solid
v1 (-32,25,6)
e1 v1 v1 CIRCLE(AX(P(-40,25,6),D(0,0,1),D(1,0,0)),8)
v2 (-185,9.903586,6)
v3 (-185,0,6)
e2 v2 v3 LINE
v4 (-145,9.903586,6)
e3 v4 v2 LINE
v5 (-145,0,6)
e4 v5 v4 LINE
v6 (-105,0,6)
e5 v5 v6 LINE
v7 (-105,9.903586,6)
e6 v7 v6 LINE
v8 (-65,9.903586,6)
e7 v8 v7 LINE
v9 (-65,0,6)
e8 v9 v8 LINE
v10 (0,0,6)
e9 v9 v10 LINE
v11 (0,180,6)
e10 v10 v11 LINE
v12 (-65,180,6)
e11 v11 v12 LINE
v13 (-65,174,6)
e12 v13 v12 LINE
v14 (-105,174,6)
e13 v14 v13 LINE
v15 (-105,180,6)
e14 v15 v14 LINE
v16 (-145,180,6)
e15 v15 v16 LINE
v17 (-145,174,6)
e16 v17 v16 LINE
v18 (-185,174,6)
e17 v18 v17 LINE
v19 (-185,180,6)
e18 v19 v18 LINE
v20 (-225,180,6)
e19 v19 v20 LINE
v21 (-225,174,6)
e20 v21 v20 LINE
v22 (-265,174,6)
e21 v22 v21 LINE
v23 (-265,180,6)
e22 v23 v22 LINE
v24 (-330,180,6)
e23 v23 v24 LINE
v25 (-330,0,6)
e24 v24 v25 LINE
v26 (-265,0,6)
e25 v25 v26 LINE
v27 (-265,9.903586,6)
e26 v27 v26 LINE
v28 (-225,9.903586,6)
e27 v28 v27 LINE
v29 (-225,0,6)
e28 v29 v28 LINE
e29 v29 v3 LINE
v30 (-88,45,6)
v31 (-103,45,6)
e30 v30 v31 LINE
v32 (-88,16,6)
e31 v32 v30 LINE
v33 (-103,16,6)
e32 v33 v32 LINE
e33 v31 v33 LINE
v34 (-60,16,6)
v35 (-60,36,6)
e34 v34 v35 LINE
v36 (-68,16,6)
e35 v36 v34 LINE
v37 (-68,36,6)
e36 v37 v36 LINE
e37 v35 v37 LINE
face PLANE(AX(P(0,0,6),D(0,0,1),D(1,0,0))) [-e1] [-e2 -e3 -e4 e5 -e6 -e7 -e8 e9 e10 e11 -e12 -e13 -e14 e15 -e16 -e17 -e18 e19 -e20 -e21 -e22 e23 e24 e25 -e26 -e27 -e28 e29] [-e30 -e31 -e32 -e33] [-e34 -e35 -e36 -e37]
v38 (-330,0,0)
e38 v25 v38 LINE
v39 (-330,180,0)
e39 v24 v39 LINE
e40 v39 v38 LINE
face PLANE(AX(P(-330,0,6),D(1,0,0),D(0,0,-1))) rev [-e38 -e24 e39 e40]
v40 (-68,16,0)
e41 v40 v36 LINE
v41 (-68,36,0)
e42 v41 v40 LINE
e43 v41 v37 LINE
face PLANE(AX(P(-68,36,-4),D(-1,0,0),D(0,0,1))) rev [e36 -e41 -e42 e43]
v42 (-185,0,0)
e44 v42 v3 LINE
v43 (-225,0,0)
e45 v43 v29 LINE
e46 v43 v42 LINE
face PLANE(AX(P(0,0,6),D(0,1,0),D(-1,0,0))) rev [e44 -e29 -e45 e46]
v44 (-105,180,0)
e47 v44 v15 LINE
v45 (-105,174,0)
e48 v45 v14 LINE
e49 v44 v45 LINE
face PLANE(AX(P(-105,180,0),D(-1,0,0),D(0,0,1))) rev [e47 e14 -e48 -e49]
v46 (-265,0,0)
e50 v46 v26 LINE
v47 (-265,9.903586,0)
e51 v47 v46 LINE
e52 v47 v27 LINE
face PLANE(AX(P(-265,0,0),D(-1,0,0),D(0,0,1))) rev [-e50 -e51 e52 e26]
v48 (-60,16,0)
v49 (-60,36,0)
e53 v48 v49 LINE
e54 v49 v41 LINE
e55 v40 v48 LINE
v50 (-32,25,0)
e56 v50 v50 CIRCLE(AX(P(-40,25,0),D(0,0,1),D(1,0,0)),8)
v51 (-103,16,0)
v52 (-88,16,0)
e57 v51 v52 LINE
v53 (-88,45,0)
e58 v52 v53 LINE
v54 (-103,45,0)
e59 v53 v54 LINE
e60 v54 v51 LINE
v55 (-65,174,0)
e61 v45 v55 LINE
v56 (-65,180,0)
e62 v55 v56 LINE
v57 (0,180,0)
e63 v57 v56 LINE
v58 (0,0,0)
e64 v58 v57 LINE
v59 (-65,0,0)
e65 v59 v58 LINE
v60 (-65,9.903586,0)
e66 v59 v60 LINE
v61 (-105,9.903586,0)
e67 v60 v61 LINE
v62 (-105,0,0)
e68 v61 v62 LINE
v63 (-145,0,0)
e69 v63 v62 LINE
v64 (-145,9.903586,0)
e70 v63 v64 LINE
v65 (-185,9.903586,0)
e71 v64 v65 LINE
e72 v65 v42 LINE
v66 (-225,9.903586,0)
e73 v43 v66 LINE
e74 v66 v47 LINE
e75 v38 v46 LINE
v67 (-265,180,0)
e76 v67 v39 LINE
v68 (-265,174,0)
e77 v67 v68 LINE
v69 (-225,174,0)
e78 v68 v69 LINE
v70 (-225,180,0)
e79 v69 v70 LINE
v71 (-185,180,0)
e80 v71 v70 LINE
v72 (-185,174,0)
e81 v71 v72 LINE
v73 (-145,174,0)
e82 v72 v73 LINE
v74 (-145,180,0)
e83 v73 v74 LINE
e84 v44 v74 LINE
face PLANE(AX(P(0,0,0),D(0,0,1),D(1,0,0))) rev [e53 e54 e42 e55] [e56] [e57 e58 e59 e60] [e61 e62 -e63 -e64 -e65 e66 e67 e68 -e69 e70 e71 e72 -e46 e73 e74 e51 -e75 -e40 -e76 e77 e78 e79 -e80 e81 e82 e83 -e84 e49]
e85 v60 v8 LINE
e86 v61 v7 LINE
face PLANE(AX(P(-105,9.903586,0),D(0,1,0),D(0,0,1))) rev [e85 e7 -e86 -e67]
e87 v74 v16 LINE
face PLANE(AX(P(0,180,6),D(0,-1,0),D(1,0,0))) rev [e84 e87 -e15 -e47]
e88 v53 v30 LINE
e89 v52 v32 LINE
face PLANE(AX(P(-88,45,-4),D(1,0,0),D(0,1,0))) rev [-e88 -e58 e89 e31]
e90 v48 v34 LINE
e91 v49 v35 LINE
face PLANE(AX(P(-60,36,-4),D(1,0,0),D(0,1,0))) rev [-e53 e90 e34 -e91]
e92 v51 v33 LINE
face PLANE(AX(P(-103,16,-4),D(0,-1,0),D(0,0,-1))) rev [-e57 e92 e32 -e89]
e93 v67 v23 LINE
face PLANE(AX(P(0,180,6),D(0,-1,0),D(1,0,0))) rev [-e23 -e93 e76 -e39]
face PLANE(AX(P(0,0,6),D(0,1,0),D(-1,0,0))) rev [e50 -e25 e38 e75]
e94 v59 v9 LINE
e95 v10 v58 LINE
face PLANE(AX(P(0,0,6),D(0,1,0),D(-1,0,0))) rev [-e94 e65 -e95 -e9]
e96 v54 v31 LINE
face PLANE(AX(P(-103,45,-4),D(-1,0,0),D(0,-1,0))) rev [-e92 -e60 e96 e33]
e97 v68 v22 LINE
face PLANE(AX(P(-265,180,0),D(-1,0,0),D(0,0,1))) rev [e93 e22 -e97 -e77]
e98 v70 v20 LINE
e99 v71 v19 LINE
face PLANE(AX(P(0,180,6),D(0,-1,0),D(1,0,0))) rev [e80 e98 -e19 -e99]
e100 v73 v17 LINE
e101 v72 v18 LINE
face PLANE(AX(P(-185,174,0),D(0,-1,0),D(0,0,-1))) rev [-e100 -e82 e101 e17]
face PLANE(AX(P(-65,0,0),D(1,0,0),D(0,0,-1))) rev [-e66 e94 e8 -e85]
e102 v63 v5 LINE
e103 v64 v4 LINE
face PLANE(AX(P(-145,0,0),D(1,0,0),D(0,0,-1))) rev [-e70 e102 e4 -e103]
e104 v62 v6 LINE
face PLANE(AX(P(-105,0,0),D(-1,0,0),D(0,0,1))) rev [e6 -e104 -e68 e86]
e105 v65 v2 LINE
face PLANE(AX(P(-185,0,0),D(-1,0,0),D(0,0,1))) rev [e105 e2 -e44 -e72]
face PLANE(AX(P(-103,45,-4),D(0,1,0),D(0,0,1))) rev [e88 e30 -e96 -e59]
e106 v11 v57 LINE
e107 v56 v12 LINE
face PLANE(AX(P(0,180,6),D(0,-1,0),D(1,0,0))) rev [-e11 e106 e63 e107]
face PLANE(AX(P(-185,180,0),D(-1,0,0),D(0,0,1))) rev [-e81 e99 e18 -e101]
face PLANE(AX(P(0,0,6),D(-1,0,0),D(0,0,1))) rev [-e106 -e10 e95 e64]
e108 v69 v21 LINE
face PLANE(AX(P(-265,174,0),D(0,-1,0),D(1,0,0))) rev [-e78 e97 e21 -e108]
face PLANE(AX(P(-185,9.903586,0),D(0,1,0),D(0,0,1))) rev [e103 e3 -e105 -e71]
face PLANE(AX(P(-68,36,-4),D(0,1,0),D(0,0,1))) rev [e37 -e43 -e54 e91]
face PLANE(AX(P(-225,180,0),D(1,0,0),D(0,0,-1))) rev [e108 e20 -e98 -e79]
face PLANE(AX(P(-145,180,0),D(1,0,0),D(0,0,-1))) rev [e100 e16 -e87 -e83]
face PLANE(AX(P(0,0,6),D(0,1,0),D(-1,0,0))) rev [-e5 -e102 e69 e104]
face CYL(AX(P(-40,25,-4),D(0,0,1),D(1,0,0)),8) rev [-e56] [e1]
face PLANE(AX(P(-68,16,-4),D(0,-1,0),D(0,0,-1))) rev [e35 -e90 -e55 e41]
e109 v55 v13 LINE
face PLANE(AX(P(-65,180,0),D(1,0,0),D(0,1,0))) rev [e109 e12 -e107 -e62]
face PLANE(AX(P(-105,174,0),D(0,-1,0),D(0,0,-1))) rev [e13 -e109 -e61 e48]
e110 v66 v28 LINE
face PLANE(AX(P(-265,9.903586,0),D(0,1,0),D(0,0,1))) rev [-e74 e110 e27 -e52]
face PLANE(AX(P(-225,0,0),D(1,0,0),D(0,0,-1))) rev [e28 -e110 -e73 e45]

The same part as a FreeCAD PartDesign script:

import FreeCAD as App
import Part
import Sketcher
Q = App.Units.Quantity

doc = App.newDocument("Part")
body = doc.addObject("PartDesign::Body", "Body")

# Sketch on XY plane
sketch1 = body.newObject("Sketcher::SketchObject", "Sketch")
sketch1.AttachmentSupport = (doc.getObject("XY_Plane"), [""])
sketch1.MapMode = "FlatFace"
sketch1.addGeometry(Part.LineSegment(App.Vector(-330, 180, 0), App.Vector(-330, 0, 0)), False)
sketch1.addGeometry(Part.LineSegment(App.Vector(-330, 0, 0), App.Vector(0, 0, 0)), False)
sketch1.addGeometry(Part.LineSegment(App.Vector(0, 0, 0), App.Vector(0, 180, 0)), False)
sketch1.addGeometry(Part.LineSegment(App.Vector(0, 180, 0), App.Vector(-330, 180, 0)), False)
sketch1.addConstraint(Sketcher.Constraint("Coincident", 0, 2, 1, 1))
sketch1.addConstraint(Sketcher.Constraint("Coincident", 1, 2, 2, 1))
sketch1.addConstraint(Sketcher.Constraint("Coincident", 2, 2, 3, 1))
sketch1.addConstraint(Sketcher.Constraint("Coincident", 3, 2, 0, 1))
sketch1.addConstraint(Sketcher.Constraint("Vertical", 0))
sketch1.addConstraint(Sketcher.Constraint("Horizontal", 1))
sketch1.addConstraint(Sketcher.Constraint("Vertical", 2))
sketch1.addConstraint(Sketcher.Constraint("Horizontal", 3))
sketch1.addConstraint(Sketcher.Constraint("Coincident", 1, 2, -1, 1))
sketch1.addConstraint(Sketcher.Constraint("DistanceX", 1, 1, 1, 2, Q("330 mm")))
sketch1.addConstraint(Sketcher.Constraint("DistanceY", 0, 2, 0, 1, Q("180 mm")))
pad1 = body.newObject("PartDesign::Pad", "Pad")
pad1.Profile = sketch1
pad1.Length = 6

# Sketch on XY plane
sketch2 = body.newObject("Sketcher::SketchObject", "Sketch001")
sketch2.AttachmentSupport = (doc.getObject("XY_Plane"), [""])
sketch2.MapMode = "FlatFace"
sketch2.AttachmentOffset = App.Placement(App.Vector(0, 0, 6), App.Rotation())
sketch2.addGeometry(Part.LineSegment(App.Vector(-265, 180, 0), App.Vector(-265, 174, 0)), False)
sketch2.addGeometry(Part.LineSegment(App.Vector(-265, 174, 0), App.Vector(-225, 174, 0)), False)
sketch2.addGeometry(Part.LineSegment(App.Vector(-225, 174, 0), App.Vector(-225, 180, 0)), False)
sketch2.addGeometry(Part.LineSegment(App.Vector(-225, 180, 0), App.Vector(-265, 180, 0)), False)
sketch2.addGeometry(Part.LineSegment(App.Vector(-185, 180, 0), App.Vector(-185, 174, 0)), False)
sketch2.addGeometry(Part.LineSegment(App.Vector(-185, 174, 0), App.Vector(-145, 174, 0)), False)
sketch2.addGeometry(Part.LineSegment(App.Vector(-145, 174, 0), App.Vector(-145, 180, 0)), False)
sketch2.addGeometry(Part.LineSegment(App.Vector(-145, 180, 0), App.Vector(-185, 180, 0)), False)
sketch2.addGeometry(Part.LineSegment(App.Vector(-105, 180, 0), App.Vector(-105, 174, 0)), False)
sketch2.addGeometry(Part.LineSegment(App.Vector(-105, 174, 0), App.Vector(-65, 174, 0)), False)
sketch2.addGeometry(Part.LineSegment(App.Vector(-65, 174, 0), App.Vector(-65, 180, 0)), False)
sketch2.addGeometry(Part.LineSegment(App.Vector(-65, 180, 0), App.Vector(-105, 180, 0)), False)
sketch2.addGeometry(Part.LineSegment(App.Vector(-265, 9.903586, 0), App.Vector(-265, 0, 0)), False)
sketch2.addGeometry(Part.LineSegment(App.Vector(-265, 0, 0), App.Vector(-225, 0, 0)), False)
sketch2.addGeometry(Part.LineSegment(App.Vector(-225, 0, 0), App.Vector(-225, 9.903586, 0)), False)
sketch2.addGeometry(Part.LineSegment(App.Vector(-225, 9.903586, 0), App.Vector(-265, 9.903586, 0)), False)
sketch2.addGeometry(Part.LineSegment(App.Vector(-185, 9.903586, 0), App.Vector(-185, 0, 0)), False)
sketch2.addGeometry(Part.LineSegment(App.Vector(-185, 0, 0), App.Vector(-145, 0, 0)), False)
sketch2.addGeometry(Part.LineSegment(App.Vector(-145, 0, 0), App.Vector(-145, 9.903586, 0)), False)
sketch2.addGeometry(Part.LineSegment(App.Vector(-145, 9.903586, 0), App.Vector(-185, 9.903586, 0)), False)
sketch2.addGeometry(Part.LineSegment(App.Vector(-105, 9.903586, 0), App.Vector(-105, 0, 0)), False)
sketch2.addGeometry(Part.LineSegment(App.Vector(-105, 0, 0), App.Vector(-65, 0, 0)), False)
sketch2.addGeometry(Part.LineSegment(App.Vector(-65, 0, 0), App.Vector(-65, 9.903586, 0)), False)
sketch2.addGeometry(Part.LineSegment(App.Vector(-65, 9.903586, 0), App.Vector(-105, 9.903586, 0)), False)
sketch2.addConstraint(Sketcher.Constraint("Coincident", 0, 2, 1, 1))
sketch2.addConstraint(Sketcher.Constraint("Coincident", 1, 2, 2, 1))
sketch2.addConstraint(Sketcher.Constraint("Coincident", 2, 2, 3, 1))
sketch2.addConstraint(Sketcher.Constraint("Coincident", 3, 2, 0, 1))
sketch2.addConstraint(Sketcher.Constraint("Coincident", 4, 2, 5, 1))
sketch2.addConstraint(Sketcher.Constraint("Coincident", 5, 2, 6, 1))
sketch2.addConstraint(Sketcher.Constraint("Coincident", 6, 2, 7, 1))
sketch2.addConstraint(Sketcher.Constraint("Coincident", 7, 2, 4, 1))
sketch2.addConstraint(Sketcher.Constraint("Coincident", 8, 2, 9, 1))
sketch2.addConstraint(Sketcher.Constraint("Coincident", 9, 2, 10, 1))
sketch2.addConstraint(Sketcher.Constraint("Coincident", 10, 2, 11, 1))
sketch2.addConstraint(Sketcher.Constraint("Coincident", 11, 2, 8, 1))
sketch2.addConstraint(Sketcher.Constraint("Coincident", 12, 2, 13, 1))
sketch2.addConstraint(Sketcher.Constraint("Coincident", 13, 2, 14, 1))
sketch2.addConstraint(Sketcher.Constraint("Coincident", 14, 2, 15, 1))
sketch2.addConstraint(Sketcher.Constraint("Coincident", 15, 2, 12, 1))
sketch2.addConstraint(Sketcher.Constraint("Coincident", 16, 2, 17, 1))
sketch2.addConstraint(Sketcher.Constraint("Coincident", 17, 2, 18, 1))
sketch2.addConstraint(Sketcher.Constraint("Coincident", 18, 2, 19, 1))
sketch2.addConstraint(Sketcher.Constraint("Coincident", 19, 2, 16, 1))
sketch2.addConstraint(Sketcher.Constraint("Coincident", 20, 2, 21, 1))
sketch2.addConstraint(Sketcher.Constraint("Coincident", 21, 2, 22, 1))
sketch2.addConstraint(Sketcher.Constraint("Coincident", 22, 2, 23, 1))
sketch2.addConstraint(Sketcher.Constraint("Coincident", 23, 2, 20, 1))
sketch2.addConstraint(Sketcher.Constraint("Vertical", 0))
sketch2.addConstraint(Sketcher.Constraint("Horizontal", 1))
sketch2.addConstraint(Sketcher.Constraint("Vertical", 2))
sketch2.addConstraint(Sketcher.Constraint("Horizontal", 3))
sketch2.addConstraint(Sketcher.Constraint("Vertical", 4))
sketch2.addConstraint(Sketcher.Constraint("Horizontal", 5))
sketch2.addConstraint(Sketcher.Constraint("Vertical", 6))
sketch2.addConstraint(Sketcher.Constraint("Horizontal", 7))
sketch2.addConstraint(Sketcher.Constraint("Vertical", 8))
sketch2.addConstraint(Sketcher.Constraint("Horizontal", 9))
sketch2.addConstraint(Sketcher.Constraint("Vertical", 10))
sketch2.addConstraint(Sketcher.Constraint("Horizontal", 11))
sketch2.addConstraint(Sketcher.Constraint("Vertical", 12))
sketch2.addConstraint(Sketcher.Constraint("Horizontal", 13))
sketch2.addConstraint(Sketcher.Constraint("Vertical", 14))
sketch2.addConstraint(Sketcher.Constraint("Horizontal", 15))
sketch2.addConstraint(Sketcher.Constraint("Vertical", 16))
sketch2.addConstraint(Sketcher.Constraint("Horizontal", 17))
sketch2.addConstraint(Sketcher.Constraint("Vertical", 18))
sketch2.addConstraint(Sketcher.Constraint("Horizontal", 19))
sketch2.addConstraint(Sketcher.Constraint("Vertical", 20))
sketch2.addConstraint(Sketcher.Constraint("Horizontal", 21))
sketch2.addConstraint(Sketcher.Constraint("Vertical", 22))
sketch2.addConstraint(Sketcher.Constraint("Horizontal", 23))
sketch2.addConstraint(Sketcher.Constraint("PointOnObject", 12, 2, -1))
sketch2.addConstraint(Sketcher.Constraint("PointOnObject", 16, 2, -1))
sketch2.addConstraint(Sketcher.Constraint("PointOnObject", 20, 2, -1))
sketch2.addConstraint(Sketcher.Constraint("Horizontal", 1, 2, 4, 2))
sketch2.addConstraint(Sketcher.Constraint("Horizontal", 3, 2, 6, 2))
sketch2.addConstraint(Sketcher.Constraint("Horizontal", 5, 2, 8, 2))
sketch2.addConstraint(Sketcher.Constraint("Horizontal", 7, 2, 10, 2))
sketch2.addConstraint(Sketcher.Constraint("Horizontal", 15, 2, 18, 2))
sketch2.addConstraint(Sketcher.Constraint("Horizontal", 19, 2, 22, 2))
sketch2.addConstraint(Sketcher.Constraint("Vertical", 3, 2, 12, 2))
sketch2.addConstraint(Sketcher.Constraint("Vertical", 2, 2, 13, 2))
sketch2.addConstraint(Sketcher.Constraint("Vertical", 7, 2, 16, 2))
sketch2.addConstraint(Sketcher.Constraint("Vertical", 6, 2, 17, 2))
sketch2.addConstraint(Sketcher.Constraint("Vertical", 11, 2, 20, 2))
sketch2.addConstraint(Sketcher.Constraint("Vertical", 10, 2, 21, 2))
sketch2.addConstraint(Sketcher.Constraint("Equal", 3, 5))
sketch2.addConstraint(Sketcher.Constraint("Equal", 7, 9))
sketch2.addConstraint(Sketcher.Constraint("DistanceX", 1, 1, 1, 2, Q("40 mm")))
sketch2.addConstraint(Sketcher.Constraint("DistanceY", 0, 2, 0, 1, Q("6 mm")))
sketch2.addConstraint(Sketcher.Constraint("DistanceX", 0, 2, -1, 1, Q("265 mm")))
sketch2.addConstraint(Sketcher.Constraint("DistanceY", -1, 1, 0, 2, Q("174 mm")))
sketch2.addConstraint(Sketcher.Constraint("DistanceX", 4, 2, -1, 1, Q("185 mm")))
sketch2.addConstraint(Sketcher.Constraint("DistanceX", 8, 2, -1, 1, Q("105 mm")))
sketch2.addConstraint(Sketcher.Constraint("DistanceY", 12, 2, 12, 1, Q("9.903586 mm")))
pocket1 = body.newObject("PartDesign::Pocket", "Pocket")
pocket1.Profile = sketch2
pocket1.Length = 6

# Sketch on XY plane
sketch3 = body.newObject("Sketcher::SketchObject", "Sketch002")
sketch3.AttachmentSupport = (doc.getObject("XY_Plane"), [""])
sketch3.MapMode = "FlatFace"
sketch3.AttachmentOffset = App.Placement(App.Vector(0, 0, 6), App.Rotation())
sketch3.addGeometry(Part.Circle(App.Vector(-40, 25, 0), App.Vector(0, 0, 1), 8), False)
sketch3.addGeometry(Part.LineSegment(App.Vector(-103, 45, 0), App.Vector(-103, 16, 0)), False)
sketch3.addGeometry(Part.LineSegment(App.Vector(-103, 16, 0), App.Vector(-88, 16, 0)), False)
sketch3.addGeometry(Part.LineSegment(App.Vector(-88, 16, 0), App.Vector(-88, 45, 0)), False)
sketch3.addGeometry(Part.LineSegment(App.Vector(-88, 45, 0), App.Vector(-103, 45, 0)), False)
sketch3.addGeometry(Part.LineSegment(App.Vector(-68, 36, 0), App.Vector(-68, 16, 0)), False)
sketch3.addGeometry(Part.LineSegment(App.Vector(-68, 16, 0), App.Vector(-60, 16, 0)), False)
sketch3.addGeometry(Part.LineSegment(App.Vector(-60, 16, 0), App.Vector(-60, 36, 0)), False)
sketch3.addGeometry(Part.LineSegment(App.Vector(-60, 36, 0), App.Vector(-68, 36, 0)), False)
sketch3.addConstraint(Sketcher.Constraint("Coincident", 1, 2, 2, 1))
sketch3.addConstraint(Sketcher.Constraint("Coincident", 2, 2, 3, 1))
sketch3.addConstraint(Sketcher.Constraint("Coincident", 3, 2, 4, 1))
sketch3.addConstraint(Sketcher.Constraint("Coincident", 4, 2, 1, 1))
sketch3.addConstraint(Sketcher.Constraint("Coincident", 5, 2, 6, 1))
sketch3.addConstraint(Sketcher.Constraint("Coincident", 6, 2, 7, 1))
sketch3.addConstraint(Sketcher.Constraint("Coincident", 7, 2, 8, 1))
sketch3.addConstraint(Sketcher.Constraint("Coincident", 8, 2, 5, 1))
sketch3.addConstraint(Sketcher.Constraint("Vertical", 1))
sketch3.addConstraint(Sketcher.Constraint("Horizontal", 2))
sketch3.addConstraint(Sketcher.Constraint("Vertical", 3))
sketch3.addConstraint(Sketcher.Constraint("Horizontal", 4))
sketch3.addConstraint(Sketcher.Constraint("Vertical", 5))
sketch3.addConstraint(Sketcher.Constraint("Horizontal", 6))
sketch3.addConstraint(Sketcher.Constraint("Vertical", 7))
sketch3.addConstraint(Sketcher.Constraint("Horizontal", 8))
sketch3.addConstraint(Sketcher.Constraint("Horizontal", 2, 2, 5, 2))
sketch3.addConstraint(Sketcher.Constraint("Diameter", 0, Q("16 mm")))
sketch3.addConstraint(Sketcher.Constraint("DistanceX", 2, 1, 2, 2, Q("15 mm")))
sketch3.addConstraint(Sketcher.Constraint("DistanceX", 6, 1, 6, 2, Q("8 mm")))
sketch3.addConstraint(Sketcher.Constraint("DistanceY", 1, 2, 1, 1, Q("29 mm")))
sketch3.addConstraint(Sketcher.Constraint("DistanceY", 5, 2, 5, 1, Q("20 mm")))
sketch3.addConstraint(Sketcher.Constraint("DistanceX", 0, 3, -1, 1, Q("40 mm")))
sketch3.addConstraint(Sketcher.Constraint("DistanceY", -1, 1, 0, 3, Q("25 mm")))
sketch3.addConstraint(Sketcher.Constraint("DistanceX", 1, 2, -1, 1, Q("103 mm")))
sketch3.addConstraint(Sketcher.Constraint("DistanceY", -1, 1, 1, 2, Q("16 mm")))
sketch3.addConstraint(Sketcher.Constraint("DistanceX", 5, 2, -1, 1, Q("68 mm")))
pocket2 = body.newObject("PartDesign::Pocket", "Pocket001")
pocket2.Profile = sketch3
pocket2.Length = 10

doc.recompute()
